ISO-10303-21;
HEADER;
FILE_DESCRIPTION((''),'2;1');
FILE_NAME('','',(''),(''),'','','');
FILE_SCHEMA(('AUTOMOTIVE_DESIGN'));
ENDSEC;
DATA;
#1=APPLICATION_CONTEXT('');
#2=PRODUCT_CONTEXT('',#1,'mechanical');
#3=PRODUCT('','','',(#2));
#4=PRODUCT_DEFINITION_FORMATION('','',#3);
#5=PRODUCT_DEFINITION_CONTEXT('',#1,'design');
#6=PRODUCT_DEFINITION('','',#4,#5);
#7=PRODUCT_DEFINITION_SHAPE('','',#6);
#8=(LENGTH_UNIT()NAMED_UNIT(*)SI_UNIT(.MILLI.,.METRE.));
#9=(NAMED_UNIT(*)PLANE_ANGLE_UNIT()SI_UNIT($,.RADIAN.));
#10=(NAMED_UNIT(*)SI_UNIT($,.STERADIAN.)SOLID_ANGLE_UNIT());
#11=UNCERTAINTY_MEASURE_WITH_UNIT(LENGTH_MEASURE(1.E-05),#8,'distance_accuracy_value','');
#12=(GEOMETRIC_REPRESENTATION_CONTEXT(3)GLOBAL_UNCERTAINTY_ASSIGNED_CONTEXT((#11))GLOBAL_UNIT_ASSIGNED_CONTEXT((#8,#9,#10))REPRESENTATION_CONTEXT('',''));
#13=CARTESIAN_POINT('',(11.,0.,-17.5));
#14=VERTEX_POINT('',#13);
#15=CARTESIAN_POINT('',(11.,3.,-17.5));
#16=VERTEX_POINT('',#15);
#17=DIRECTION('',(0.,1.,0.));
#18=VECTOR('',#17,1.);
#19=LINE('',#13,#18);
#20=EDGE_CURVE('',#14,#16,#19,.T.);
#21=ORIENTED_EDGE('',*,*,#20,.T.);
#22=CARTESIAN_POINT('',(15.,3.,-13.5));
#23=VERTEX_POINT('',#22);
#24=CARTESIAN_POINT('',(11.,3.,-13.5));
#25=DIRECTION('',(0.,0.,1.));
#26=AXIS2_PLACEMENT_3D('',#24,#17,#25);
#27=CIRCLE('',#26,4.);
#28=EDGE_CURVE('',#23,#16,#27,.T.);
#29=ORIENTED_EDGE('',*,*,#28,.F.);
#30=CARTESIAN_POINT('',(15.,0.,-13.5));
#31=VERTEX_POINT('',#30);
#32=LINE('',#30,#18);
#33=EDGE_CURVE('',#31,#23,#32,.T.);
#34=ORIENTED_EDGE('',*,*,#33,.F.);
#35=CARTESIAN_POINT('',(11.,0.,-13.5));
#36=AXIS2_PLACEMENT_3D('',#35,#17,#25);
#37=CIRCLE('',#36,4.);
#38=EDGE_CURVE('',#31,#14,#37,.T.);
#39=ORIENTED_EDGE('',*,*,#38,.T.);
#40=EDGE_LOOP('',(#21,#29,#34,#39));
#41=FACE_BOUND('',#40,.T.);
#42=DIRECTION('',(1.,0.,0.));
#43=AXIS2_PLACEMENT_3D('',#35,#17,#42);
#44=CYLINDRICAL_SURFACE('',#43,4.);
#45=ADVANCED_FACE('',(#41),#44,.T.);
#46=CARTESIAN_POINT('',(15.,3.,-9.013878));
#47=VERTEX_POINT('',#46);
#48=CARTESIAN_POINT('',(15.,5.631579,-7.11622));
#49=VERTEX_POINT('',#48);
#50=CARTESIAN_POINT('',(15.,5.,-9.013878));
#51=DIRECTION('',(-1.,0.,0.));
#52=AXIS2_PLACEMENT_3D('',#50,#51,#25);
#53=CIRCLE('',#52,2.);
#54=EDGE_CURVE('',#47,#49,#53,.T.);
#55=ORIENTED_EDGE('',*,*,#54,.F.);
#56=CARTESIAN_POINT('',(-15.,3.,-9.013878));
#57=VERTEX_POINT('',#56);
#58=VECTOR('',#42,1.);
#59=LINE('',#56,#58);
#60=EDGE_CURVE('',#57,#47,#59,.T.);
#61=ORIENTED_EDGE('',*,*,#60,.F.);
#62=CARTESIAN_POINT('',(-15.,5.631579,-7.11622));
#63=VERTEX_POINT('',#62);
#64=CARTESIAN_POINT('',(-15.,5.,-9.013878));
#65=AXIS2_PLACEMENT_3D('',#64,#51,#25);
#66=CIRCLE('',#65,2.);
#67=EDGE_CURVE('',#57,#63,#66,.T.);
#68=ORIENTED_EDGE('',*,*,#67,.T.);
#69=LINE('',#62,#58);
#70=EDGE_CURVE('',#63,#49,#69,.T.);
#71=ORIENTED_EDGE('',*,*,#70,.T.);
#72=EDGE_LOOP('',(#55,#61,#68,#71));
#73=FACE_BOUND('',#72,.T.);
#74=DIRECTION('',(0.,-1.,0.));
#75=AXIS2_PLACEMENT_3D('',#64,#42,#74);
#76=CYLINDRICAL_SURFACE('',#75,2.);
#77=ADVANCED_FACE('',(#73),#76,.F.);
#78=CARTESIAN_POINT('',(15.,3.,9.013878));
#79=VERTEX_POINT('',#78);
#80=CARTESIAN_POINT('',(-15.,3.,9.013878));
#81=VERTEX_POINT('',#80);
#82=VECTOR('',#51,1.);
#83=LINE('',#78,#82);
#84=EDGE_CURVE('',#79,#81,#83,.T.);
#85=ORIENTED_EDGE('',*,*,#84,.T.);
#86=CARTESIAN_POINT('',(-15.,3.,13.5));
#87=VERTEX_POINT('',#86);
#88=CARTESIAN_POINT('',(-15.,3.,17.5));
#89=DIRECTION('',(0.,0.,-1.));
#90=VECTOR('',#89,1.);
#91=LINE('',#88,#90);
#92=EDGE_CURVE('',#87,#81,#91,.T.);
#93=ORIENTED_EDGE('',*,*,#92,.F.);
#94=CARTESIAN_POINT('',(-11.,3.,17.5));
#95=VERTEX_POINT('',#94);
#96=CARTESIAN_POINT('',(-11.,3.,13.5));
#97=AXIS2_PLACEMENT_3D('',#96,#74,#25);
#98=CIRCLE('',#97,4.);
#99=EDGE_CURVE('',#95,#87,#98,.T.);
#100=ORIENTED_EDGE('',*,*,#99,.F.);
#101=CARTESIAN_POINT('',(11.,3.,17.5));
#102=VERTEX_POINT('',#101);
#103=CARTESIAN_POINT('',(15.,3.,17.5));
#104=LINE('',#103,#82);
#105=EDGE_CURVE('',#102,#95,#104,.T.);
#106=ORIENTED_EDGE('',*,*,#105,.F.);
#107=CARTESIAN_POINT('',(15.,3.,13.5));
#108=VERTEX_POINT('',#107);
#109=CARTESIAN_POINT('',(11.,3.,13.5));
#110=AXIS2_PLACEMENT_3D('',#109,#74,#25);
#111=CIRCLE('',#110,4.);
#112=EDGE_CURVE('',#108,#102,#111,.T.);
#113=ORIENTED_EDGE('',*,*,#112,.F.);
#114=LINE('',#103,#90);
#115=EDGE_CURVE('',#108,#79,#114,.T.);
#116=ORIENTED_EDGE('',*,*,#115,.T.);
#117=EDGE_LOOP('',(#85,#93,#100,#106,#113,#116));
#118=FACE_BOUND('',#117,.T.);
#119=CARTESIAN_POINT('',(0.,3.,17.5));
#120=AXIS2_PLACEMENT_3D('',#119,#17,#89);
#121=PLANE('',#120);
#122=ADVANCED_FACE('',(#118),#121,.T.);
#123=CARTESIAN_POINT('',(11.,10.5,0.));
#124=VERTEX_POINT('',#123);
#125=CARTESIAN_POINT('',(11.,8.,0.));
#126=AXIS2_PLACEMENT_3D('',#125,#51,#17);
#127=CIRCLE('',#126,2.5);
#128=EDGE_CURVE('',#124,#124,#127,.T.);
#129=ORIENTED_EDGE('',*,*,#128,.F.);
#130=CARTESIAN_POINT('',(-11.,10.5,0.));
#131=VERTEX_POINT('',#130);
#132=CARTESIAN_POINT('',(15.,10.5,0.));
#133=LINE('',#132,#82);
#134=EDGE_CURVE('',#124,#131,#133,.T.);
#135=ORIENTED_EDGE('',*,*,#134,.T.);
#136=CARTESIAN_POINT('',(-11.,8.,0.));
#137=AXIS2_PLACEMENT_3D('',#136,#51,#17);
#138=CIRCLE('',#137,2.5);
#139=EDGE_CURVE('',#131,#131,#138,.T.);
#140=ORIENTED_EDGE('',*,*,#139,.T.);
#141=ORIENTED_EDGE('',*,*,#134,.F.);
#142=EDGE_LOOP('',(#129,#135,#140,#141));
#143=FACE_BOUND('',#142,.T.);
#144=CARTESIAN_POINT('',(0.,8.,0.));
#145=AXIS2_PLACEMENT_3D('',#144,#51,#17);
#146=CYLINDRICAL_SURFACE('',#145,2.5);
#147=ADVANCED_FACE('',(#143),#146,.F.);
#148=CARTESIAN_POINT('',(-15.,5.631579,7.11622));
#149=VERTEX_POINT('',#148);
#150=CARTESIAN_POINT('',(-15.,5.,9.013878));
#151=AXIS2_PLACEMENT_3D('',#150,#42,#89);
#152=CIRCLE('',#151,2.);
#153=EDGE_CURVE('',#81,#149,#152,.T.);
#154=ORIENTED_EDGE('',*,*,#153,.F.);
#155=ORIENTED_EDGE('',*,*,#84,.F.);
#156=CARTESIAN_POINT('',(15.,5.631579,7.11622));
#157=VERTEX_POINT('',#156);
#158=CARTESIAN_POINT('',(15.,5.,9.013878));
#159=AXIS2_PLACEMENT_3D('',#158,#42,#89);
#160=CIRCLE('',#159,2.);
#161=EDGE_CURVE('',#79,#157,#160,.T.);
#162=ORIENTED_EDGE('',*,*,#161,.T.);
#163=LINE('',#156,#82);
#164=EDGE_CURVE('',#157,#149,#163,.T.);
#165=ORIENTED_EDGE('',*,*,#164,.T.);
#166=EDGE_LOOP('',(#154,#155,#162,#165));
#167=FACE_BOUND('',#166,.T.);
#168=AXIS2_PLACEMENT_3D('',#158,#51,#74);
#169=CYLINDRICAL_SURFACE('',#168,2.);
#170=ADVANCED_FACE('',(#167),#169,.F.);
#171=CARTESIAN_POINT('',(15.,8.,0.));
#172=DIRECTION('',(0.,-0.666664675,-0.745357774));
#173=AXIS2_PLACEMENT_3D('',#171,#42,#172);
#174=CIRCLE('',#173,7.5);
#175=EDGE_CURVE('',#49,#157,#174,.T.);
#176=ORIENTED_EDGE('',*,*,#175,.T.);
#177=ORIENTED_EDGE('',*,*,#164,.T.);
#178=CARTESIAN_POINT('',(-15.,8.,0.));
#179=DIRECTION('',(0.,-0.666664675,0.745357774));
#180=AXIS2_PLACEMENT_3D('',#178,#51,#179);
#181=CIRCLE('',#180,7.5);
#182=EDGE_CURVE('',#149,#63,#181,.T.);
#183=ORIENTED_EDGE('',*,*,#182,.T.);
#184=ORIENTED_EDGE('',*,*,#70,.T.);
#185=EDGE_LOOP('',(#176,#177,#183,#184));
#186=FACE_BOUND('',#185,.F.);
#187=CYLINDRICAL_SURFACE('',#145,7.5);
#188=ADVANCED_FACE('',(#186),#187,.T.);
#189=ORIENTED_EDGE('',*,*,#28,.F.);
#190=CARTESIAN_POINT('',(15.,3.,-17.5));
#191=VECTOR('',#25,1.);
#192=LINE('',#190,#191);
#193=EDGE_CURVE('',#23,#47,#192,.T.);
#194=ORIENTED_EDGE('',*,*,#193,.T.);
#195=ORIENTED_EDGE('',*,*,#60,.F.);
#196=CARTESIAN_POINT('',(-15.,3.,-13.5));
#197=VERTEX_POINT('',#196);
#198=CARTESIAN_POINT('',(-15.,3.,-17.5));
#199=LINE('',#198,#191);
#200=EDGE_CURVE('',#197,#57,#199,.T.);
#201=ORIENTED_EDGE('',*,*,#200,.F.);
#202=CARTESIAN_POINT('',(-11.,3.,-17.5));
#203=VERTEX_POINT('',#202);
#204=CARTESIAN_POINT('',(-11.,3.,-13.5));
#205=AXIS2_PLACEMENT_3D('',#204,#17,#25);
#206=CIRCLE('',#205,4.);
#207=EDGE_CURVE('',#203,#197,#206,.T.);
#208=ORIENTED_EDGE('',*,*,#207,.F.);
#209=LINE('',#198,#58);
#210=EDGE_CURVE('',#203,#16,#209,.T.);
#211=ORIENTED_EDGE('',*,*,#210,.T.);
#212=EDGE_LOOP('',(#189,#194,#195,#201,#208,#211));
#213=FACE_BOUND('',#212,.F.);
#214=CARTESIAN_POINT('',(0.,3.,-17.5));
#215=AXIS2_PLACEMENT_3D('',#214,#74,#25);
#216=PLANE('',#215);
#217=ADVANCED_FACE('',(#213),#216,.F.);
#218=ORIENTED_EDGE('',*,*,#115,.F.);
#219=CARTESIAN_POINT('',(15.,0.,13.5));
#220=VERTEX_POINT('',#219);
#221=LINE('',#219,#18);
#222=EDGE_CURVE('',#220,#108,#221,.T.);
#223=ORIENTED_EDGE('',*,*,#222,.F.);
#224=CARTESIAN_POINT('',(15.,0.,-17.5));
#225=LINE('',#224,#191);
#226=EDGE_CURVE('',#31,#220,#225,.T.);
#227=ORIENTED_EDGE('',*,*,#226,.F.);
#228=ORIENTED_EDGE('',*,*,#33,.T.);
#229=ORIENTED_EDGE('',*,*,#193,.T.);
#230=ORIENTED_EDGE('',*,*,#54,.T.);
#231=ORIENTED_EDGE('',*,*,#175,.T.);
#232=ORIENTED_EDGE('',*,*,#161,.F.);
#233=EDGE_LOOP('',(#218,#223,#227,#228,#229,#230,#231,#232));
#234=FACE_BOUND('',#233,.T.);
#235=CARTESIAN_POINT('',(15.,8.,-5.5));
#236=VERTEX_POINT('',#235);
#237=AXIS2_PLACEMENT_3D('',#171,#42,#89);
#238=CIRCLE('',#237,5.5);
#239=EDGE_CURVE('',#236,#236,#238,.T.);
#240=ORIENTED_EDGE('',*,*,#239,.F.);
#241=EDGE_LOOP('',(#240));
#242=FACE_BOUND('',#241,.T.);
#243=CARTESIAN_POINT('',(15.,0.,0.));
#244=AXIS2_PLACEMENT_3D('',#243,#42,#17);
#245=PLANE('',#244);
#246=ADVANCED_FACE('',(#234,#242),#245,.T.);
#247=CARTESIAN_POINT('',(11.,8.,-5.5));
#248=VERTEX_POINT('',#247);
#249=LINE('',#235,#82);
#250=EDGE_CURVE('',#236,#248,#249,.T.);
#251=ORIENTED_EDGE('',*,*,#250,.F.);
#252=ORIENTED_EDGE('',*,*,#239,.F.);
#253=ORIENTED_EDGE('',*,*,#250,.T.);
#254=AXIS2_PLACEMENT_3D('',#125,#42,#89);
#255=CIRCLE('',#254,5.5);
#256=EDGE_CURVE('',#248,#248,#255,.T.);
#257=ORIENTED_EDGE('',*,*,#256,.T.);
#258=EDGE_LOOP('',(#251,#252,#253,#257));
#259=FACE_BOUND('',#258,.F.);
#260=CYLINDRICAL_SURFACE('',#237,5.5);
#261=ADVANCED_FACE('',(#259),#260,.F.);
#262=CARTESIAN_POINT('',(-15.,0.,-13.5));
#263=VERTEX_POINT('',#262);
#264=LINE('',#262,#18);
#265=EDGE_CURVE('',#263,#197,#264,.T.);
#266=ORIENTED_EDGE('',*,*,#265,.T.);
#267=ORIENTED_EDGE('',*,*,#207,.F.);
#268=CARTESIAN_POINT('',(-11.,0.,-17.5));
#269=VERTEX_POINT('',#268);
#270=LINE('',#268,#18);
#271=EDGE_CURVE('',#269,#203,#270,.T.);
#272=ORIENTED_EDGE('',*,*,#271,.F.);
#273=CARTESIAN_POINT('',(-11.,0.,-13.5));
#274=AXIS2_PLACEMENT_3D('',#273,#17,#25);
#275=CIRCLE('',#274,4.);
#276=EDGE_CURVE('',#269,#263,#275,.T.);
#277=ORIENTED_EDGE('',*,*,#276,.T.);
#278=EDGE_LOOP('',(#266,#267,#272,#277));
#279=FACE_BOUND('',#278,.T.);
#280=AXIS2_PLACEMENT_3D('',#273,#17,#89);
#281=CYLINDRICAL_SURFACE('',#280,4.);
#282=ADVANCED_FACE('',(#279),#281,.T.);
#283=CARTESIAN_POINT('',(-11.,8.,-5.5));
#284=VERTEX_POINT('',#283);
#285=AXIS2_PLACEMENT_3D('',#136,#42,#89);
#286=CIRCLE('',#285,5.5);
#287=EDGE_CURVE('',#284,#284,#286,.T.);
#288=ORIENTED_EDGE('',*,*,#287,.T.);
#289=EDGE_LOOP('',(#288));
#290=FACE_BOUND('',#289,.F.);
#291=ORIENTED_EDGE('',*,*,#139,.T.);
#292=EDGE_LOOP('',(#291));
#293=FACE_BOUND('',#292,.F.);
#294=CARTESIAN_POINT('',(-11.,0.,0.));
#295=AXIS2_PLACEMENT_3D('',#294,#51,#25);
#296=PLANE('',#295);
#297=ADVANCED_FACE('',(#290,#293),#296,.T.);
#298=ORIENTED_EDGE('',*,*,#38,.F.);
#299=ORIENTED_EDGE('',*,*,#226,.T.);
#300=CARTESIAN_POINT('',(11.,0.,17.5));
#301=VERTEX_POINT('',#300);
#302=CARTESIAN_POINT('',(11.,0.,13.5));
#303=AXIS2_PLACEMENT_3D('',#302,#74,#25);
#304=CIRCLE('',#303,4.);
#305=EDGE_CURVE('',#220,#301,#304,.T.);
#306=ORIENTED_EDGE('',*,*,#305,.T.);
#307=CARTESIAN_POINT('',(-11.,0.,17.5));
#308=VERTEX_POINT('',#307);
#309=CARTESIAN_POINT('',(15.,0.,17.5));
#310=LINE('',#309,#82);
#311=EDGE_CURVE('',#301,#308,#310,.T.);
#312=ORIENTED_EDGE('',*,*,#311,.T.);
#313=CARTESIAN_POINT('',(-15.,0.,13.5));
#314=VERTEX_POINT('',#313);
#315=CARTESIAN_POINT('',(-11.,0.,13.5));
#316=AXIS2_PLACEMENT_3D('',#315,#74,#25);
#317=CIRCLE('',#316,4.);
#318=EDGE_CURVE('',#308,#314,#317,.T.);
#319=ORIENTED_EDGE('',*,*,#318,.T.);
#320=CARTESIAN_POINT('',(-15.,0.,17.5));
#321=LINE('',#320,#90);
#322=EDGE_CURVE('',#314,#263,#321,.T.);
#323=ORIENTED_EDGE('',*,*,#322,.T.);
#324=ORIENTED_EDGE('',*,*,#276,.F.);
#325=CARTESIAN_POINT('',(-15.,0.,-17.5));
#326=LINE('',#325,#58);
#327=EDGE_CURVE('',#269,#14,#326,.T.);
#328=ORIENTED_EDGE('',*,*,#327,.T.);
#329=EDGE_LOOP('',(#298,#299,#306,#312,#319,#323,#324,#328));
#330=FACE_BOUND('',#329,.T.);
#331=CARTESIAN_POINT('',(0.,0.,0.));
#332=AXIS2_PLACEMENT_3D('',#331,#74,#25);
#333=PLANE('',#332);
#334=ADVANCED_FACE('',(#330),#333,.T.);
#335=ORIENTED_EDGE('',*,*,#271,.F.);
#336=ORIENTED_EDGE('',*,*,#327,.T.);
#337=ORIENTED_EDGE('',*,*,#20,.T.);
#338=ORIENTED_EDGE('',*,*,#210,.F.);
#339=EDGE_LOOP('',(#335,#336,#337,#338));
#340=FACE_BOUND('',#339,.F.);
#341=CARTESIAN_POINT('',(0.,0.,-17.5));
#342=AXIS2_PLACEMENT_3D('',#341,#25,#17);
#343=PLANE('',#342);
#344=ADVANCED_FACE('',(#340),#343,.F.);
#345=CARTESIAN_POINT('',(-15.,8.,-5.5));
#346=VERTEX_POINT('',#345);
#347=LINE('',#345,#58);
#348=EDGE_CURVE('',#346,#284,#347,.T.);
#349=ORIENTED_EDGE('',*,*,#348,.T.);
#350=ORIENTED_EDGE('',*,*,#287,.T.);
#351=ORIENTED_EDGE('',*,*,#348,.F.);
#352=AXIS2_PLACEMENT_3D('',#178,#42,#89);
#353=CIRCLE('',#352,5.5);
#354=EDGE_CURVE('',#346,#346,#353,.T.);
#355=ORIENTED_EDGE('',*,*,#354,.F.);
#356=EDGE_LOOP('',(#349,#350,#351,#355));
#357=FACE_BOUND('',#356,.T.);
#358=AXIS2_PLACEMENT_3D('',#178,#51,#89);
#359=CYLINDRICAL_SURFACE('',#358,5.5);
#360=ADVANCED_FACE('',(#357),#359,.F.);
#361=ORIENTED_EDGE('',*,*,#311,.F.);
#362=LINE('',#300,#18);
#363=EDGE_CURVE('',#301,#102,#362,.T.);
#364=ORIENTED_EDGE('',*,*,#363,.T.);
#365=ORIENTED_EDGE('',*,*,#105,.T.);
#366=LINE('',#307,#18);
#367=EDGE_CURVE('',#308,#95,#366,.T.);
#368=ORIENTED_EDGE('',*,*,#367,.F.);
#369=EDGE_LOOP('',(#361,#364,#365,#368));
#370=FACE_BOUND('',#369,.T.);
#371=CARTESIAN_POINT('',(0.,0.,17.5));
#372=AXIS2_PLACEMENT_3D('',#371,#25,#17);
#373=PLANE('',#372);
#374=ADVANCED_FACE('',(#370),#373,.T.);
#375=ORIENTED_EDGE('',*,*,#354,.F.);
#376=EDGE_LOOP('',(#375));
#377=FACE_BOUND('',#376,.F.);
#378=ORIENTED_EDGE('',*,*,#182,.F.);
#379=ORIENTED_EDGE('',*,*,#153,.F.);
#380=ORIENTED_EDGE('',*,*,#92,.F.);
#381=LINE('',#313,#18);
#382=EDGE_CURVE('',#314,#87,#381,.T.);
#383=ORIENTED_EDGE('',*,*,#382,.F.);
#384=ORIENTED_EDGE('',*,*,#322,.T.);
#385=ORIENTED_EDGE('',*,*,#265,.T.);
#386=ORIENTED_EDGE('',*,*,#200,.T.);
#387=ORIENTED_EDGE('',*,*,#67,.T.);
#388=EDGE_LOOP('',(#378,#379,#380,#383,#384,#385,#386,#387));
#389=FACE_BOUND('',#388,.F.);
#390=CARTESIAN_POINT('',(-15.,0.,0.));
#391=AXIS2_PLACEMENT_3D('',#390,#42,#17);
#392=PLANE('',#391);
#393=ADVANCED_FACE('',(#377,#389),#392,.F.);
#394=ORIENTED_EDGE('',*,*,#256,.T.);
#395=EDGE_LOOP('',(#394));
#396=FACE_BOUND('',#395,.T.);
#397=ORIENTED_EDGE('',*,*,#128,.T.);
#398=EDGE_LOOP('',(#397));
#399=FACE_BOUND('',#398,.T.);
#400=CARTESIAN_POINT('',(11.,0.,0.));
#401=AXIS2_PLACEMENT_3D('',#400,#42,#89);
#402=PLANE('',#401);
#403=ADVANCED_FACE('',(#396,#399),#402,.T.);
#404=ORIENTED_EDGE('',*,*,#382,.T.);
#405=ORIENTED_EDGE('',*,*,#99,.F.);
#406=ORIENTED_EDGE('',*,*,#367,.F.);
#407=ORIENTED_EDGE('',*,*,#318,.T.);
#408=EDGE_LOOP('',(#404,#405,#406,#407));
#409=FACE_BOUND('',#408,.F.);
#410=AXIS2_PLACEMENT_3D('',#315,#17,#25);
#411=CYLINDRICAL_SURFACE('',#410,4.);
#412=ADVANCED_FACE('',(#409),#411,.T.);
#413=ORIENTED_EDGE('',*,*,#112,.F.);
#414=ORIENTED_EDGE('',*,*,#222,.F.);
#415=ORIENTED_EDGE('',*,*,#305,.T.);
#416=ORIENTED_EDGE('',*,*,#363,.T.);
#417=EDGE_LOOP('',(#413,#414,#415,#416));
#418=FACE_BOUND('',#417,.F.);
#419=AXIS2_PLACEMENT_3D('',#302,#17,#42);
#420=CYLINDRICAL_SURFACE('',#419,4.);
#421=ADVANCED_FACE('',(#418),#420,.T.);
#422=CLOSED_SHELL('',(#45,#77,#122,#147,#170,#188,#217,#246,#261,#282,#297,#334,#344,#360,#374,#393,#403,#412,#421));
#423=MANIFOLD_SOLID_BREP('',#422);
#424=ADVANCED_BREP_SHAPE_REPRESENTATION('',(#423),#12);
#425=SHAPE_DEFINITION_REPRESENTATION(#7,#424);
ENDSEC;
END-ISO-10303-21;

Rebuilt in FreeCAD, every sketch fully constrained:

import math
import FreeCAD as App
import Part
import Sketcher
Q = App.Units.Quantity


def edges_at(feature, points):
    """Names of the edges that pass closest to the given points."""
    edges = feature.Shape.Edges
    near = lambda p: min(range(len(edges)), key=lambda i: edges[i].distToShape(Part.Vertex(*p))[0])
    return sorted({f"Edge{near(p) + 1}" for p in points})

doc = App.newDocument("Part")
body = doc.addObject("PartDesign::Body", "Body")

# Sketch on YZ plane
sketch1 = doc.addObject("Sketcher::SketchObject", "Sketch")
body.addObject(sketch1)
sketch1.AttachmentSupport = (doc.YZ_Plane, [""])
sketch1.MapMode = "FlatFace"
sketch1.addGeometry([
    Part.LineSegment(App.Vector(0, 17.5, 0), App.Vector(0, -17.5, 0)),  # 0
    Part.LineSegment(App.Vector(0, -17.5, 0), App.Vector(3, -17.5, 0)),  # 1
    Part.LineSegment(App.Vector(3, -17.5, 0), App.Vector(3, -5.6, 0)),  # 2
    Part.ArcOfCircle(Part.Circle(App.Vector(8, 0, 0), App.Vector(0, 0, 1), 7.5), math.radians(-132), math.radians(132)),  # 3
    Part.LineSegment(App.Vector(3, 5.6, 0), App.Vector(3, 17.5, 0)),  # 4
    Part.LineSegment(App.Vector(3, 17.5, 0), App.Vector(0, 17.5, 0)),  # 5
    Part.Circle(App.Vector(8, 0, 0), App.Vector(0, 0, 1), 2.5),  # 6
], False)
sketch1.addConstraint([
    Sketcher.Constraint("Coincident", 0, 2, 1, 1),
    Sketcher.Constraint("Coincident", 1, 2, 2, 1),
    Sketcher.Constraint("Coincident", 2, 2, 3, 1),
    Sketcher.Constraint("Coincident", 3, 2, 4, 1),
    Sketcher.Constraint("Coincident", 4, 2, 5, 1),
    Sketcher.Constraint("Coincident", 5, 2, 0, 1),
    Sketcher.Constraint("Vertical", 0),
    Sketcher.Constraint("Horizontal", 1),
    Sketcher.Constraint("Vertical", 2),
    Sketcher.Constraint("Vertical", 4),
    Sketcher.Constraint("Horizontal", 5),
    Sketcher.Constraint("Coincident", 6, 3, 3, 3),
    Sketcher.Constraint("Symmetric", 0, 2, 5, 2, -1, 1),
    Sketcher.Constraint("Symmetric", 2, 2, 3, 2, -1),
    Sketcher.Constraint("Diameter", 6, Q("5 mm")),
    Sketcher.Constraint("Radius", 3, Q("7.5 mm")),
    Sketcher.Constraint("DistanceX", 1, 1, 1, 2, Q("3 mm")),
    Sketcher.Constraint("DistanceX", -1, 1, 3, 3, Q("8 mm")),
    Sketcher.Constraint("DistanceY", 0, 2, -1, 1, Q("17.5 mm")),
])
pad1 = doc.addObject("PartDesign::Pad", "Pad")
body.addObject(pad1)
pad1.Profile = sketch1
pad1.Length = 30
pad1.Midplane = True
doc.recompute()

fillet = doc.addObject("PartDesign::Fillet", "Fillet")
body.addObject(fillet)
fillet.Base = (pad1, edges_at(pad1, [(0, 3, 5.59), (0, 3, -5.59)]))
fillet.Radius = 2
doc.recompute()

fillet2 = doc.addObject("PartDesign::Fillet", "Fillet001")
body.addObject(fillet2)
fillet2.Base = (fillet, edges_at(fillet, [
    (15, 1.5, 17.5),
    (15, 1.5, -17.5),
    (-15, 1.5, 17.5),
    (-15, 1.5, -17.5),
]))
fillet2.Radius = 4

# Sketch on YZ plane
sketch2 = doc.addObject("Sketcher::SketchObject", "Sketch001")
body.addObject(sketch2)
sketch2.AttachmentSupport = (doc.YZ_Plane, [""])
sketch2.MapMode = "FlatFace"
sketch2.AttachmentOffset = App.Placement(App.Vector(0, 0, 15), App.Rotation())
sketch2.addGeometry([
    Part.Circle(App.Vector(8, 0, 0), App.Vector(0, 0, 1), 5.5),
    Part.Circle(App.Vector(8, 0, 0), App.Vector(0, 0, 1), 2.5),
], False)
sketch2.addConstraint([
    Sketcher.Constraint("Coincident", 1, 3, 0, 3),
    Sketcher.Constraint("PointOnObject", 0, 3, -1),
    Sketcher.Constraint("Diameter", 0, Q("11 mm")),
    Sketcher.Constraint("Diameter", 1, Q("5 mm")),
    Sketcher.Constraint("DistanceX", -1, 1, 0, 3, Q("8 mm")),
])
pocket1 = doc.addObject("PartDesign::Pocket", "Pocket")
body.addObject(pocket1)
pocket1.Profile = sketch2
pocket1.Length = 4
doc.recompute()

mirrored = doc.addObject("PartDesign::Mirrored", "Mirrored")
body.addObject(mirrored)
mirrored.Originals = [pocket1]
mirrored.MirrorPlane = (doc.YZ_Plane, [""])
body.Tip = mirrored

doc.recompute()
